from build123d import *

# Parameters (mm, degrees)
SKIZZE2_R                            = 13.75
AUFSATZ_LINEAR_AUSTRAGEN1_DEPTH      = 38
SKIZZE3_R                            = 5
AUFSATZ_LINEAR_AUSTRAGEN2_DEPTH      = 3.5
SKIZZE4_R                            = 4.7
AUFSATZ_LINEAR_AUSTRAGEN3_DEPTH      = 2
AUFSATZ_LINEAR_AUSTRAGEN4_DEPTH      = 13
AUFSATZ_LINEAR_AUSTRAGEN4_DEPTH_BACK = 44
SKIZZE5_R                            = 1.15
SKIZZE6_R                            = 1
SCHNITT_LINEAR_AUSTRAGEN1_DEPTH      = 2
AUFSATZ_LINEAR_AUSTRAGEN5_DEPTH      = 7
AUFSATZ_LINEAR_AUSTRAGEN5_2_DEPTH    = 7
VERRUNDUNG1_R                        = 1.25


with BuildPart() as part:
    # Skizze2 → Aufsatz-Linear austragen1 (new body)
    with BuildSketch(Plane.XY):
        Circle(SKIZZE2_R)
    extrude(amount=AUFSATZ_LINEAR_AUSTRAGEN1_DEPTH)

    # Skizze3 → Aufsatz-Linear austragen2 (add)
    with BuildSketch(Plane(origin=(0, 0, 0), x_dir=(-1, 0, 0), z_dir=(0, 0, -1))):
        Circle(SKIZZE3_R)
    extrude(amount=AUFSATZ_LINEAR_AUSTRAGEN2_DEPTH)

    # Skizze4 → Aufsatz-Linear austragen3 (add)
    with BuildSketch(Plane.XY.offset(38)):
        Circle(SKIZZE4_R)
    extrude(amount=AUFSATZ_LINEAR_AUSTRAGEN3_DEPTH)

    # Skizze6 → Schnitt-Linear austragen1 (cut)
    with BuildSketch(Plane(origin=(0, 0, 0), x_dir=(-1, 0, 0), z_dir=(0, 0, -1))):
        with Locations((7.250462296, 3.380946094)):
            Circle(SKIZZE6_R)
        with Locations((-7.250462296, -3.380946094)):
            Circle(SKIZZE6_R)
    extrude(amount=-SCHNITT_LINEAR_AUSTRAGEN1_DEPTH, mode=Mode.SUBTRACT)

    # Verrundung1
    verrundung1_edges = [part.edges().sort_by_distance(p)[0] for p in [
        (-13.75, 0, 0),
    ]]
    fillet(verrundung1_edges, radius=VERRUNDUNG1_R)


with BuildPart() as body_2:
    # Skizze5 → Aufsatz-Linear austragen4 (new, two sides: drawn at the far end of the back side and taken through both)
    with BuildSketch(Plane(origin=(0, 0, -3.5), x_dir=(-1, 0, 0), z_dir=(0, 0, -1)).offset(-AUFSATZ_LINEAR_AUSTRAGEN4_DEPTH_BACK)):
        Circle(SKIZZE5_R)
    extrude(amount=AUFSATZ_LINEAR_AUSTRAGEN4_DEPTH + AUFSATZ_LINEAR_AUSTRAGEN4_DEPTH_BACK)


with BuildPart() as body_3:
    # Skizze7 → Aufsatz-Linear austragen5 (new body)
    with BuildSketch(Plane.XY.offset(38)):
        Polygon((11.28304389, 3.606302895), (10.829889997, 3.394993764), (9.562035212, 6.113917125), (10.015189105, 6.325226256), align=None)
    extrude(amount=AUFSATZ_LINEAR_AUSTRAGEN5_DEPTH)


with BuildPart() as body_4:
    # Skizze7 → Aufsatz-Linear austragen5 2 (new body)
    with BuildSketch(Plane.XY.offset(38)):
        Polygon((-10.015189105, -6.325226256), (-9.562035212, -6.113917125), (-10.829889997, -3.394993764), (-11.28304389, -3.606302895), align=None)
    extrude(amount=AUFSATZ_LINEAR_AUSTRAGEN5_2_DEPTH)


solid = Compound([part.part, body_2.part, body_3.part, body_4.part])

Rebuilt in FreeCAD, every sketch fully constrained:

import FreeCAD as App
import Part
import Sketcher

V = App.Vector
Q = App.Units.Quantity


def edges_at(feature, points):
    """Names of the edges that pass closest to the given points."""
    edges = feature.Shape.Edges
    near = lambda p: min(range(len(edges)), key=lambda i: edges[i].distToShape(Part.Vertex(*p))[0])
    return sorted({f"Edge{near(p) + 1}" for p in points})


def add_polygon(sketch, points):
    """Adds a closed chain of lines whose ends are joined by coincident constraints."""
    first, n = sketch.GeometryCount, len(points)
    for a, b in zip(points, points[1:] + points[:1]):
        sketch.addGeometry(Part.LineSegment(App.Vector(*a, 0), App.Vector(*b, 0)), False)
    for i in range(n):
        sketch.addConstraint(Sketcher.Constraint("Coincident", first + i, 2, first + (i + 1) % n, 1))

doc = App.newDocument("Part")
body = doc.addObject("PartDesign::Body", "Body")

# Sketch on XY plane
sketch1 = body.newObject("Sketcher::SketchObject", "Sketch")
sketch1.AttachmentSupport = (doc.getObject("XY_Plane"), [""])
sketch1.MapMode = "FlatFace"
sketch1.addGeometry(Part.Circle(V(0, 0, 0), V(0, 0, 1), 14), False)
sketch1.addConstraint([
    Sketcher.Constraint("Coincident", 0, 3, -1, 1),
    Sketcher.Constraint("Diameter", 0, 27.5),
])
pad1 = body.newObject("PartDesign::Pad", "Pad")
pad1.Profile = sketch1
pad1.Length = 38

# Sketch on XY plane
sketch2 = body.newObject("Sketcher::SketchObject", "Sketch001")
sketch2.AttachmentSupport = (doc.getObject("XY_Plane"), [""])
sketch2.MapMode = "FlatFace"
sketch2.addGeometry(Part.Circle(V(0, 0, 0), V(0, 0, 1), 5), False)
sketch2.addConstraint([
    Sketcher.Constraint("Coincident", 0, 3, -1, 1),
    Sketcher.Constraint("Diameter", 0, 10.0),
])
pad2 = body.newObject("PartDesign::Pad", "Pad001")
pad2.Profile = sketch2
pad2.Length = 3.5
pad2.Reversed = True

# Sketch on XY plane
sketch3 = body.newObject("Sketcher::SketchObject", "Sketch002")
sketch3.AttachmentSupport = (doc.getObject("XY_Plane"), [""])
sketch3.MapMode = "FlatFace"
sketch3.AttachmentOffset = App.Placement(V(0, 0, 38), App.Rotation())
sketch3.addGeometry(Part.Circle(V(0, 0, 0), V(0, 0, 1), 4.7), False)
sketch3.addConstraint([
    Sketcher.Constraint("Coincident", 0, 3, -1, 1),
    Sketcher.Constraint("Diameter", 0, 9.4),
])
pad3 = body.newObject("PartDesign::Pad", "Pad002")
pad3.Profile = sketch3
pad3.Length = 2

# Sketch on XY plane
sketch4 = body.newObject("Sketcher::SketchObject", "Sketch003")
sketch4.AttachmentSupport = (doc.getObject("XY_Plane"), [""])
sketch4.MapMode = "FlatFace"
sketch4.addGeometry([
    Part.Circle(V(-7.3, 3.4, 0), V(0, 0, 1), 1),
    Part.Circle(V(7.3, -3.4, 0), V(0, 0, 1), 1),
], False)
sketch4.addConstraint([
    Sketcher.Constraint("Equal", 0, 1),
    Sketcher.Constraint("Symmetric", 0, 3, 1, 3, -1, 1),
    Sketcher.Constraint("Diameter", 0, 2.0),
    Sketcher.Constraint("DistanceX", 0, 3, -1, 1, 7.250462),
    Sketcher.Constraint("DistanceY", -1, 1, 0, 3, 3.380946),
])
pocket1 = body.newObject("PartDesign::Pocket", "Pocket")
pocket1.Profile = sketch4
pocket1.Length = 2
pocket1.Reversed = True
doc.recompute()

fillet = body.newObject("PartDesign::Fillet", "Fillet")
fillet.Base = (pocket1, edges_at(pocket1, [(-13.75, 0, 0)]))
fillet.Radius = 1.25
body2 = doc.addObject("PartDesign::Body", "Body001")

# Sketch on XY plane
sketch5 = body2.newObject("Sketcher::SketchObject", "Sketch004")
sketch5.AttachmentSupport = (doc.getObject("XY_Plane001"), [""])
sketch5.MapMode = "FlatFace"
sketch5.AttachmentOffset = App.Placement(V(0, 0, -3.5), App.Rotation())
sketch5.addGeometry(Part.Circle(V(0, 0, 0), V(0, 0, 1), 1.1), False)
sketch5.addConstraint([
    Sketcher.Constraint("Coincident", 0, 3, -1, 1),
    Sketcher.Constraint("Diameter", 0, 2.3),
])
pad4 = body2.newObject("PartDesign::Pad", "Pad003")
pad4.Profile = sketch5
pad4.Type = "TwoLengths"
pad4.Length = 13
pad4.Length2 = 44
pad4.Reversed = True
body3 = doc.addObject("PartDesign::Body", "Body002")

# Sketch on XY plane
sketch6 = body3.newObject("Sketcher::SketchObject", "Sketch005")
sketch6.AttachmentSupport = (doc.getObject("XY_Plane002"), [""])
sketch6.MapMode = "FlatFace"
sketch6.AttachmentOffset = App.Placement(V(0, 0, 38), App.Rotation())
add_polygon(sketch6, [(10.83, 3.39), (11.28, 3.61), (10.02, 6.33), (9.56, 6.11)])  # lines 0-3
sketch6.addConstraint([
    Sketcher.Constraint("Perpendicular", 0, 1),
    Sketcher.Constraint("Perpendicular", 1, 2),
    Sketcher.Constraint("Perpendicular", 2, 3),
    Sketcher.Constraint("Angle", 0, Q("25 deg")),
    Sketcher.Constraint("Distance", 1, 3.0),
    Sketcher.Constraint("Distance", 0, 0.5),
    Sketcher.Constraint("DistanceX", -1, 1, 1, 2, 10.015189),
    Sketcher.Constraint("DistanceY", -1, 1, 0, 2, 3.606303),
])
pad5 = body3.newObject("PartDesign::Pad", "Pad004")
pad5.Profile = sketch6
pad5.Length = 7
body4 = doc.addObject("PartDesign::Body", "Body003")

# Sketch on XY plane
sketch7 = body4.newObject("Sketcher::SketchObject", "Sketch006")
sketch7.AttachmentSupport = (doc.getObject("XY_Plane003"), [""])
sketch7.MapMode = "FlatFace"
sketch7.AttachmentOffset = App.Placement(V(0, 0, 38), App.Rotation())
add_polygon(sketch7, [(-10.02, -6.33), (-9.56, -6.11), (-10.83, -3.39), (-11.28, -3.61)])  # lines 0-3
sketch7.addConstraint([
    Sketcher.Constraint("Perpendicular", 0, 1),
    Sketcher.Constraint("Perpendicular", 1, 2),
    Sketcher.Constraint("Perpendicular", 2, 3),
    Sketcher.Constraint("Angle", 0, Q("25 deg")),
    Sketcher.Constraint("Distance", 1, 3.0),
    Sketcher.Constraint("Distance", 0, 0.5),
    Sketcher.Constraint("DistanceX", 1, 2, -1, 1, 10.82989),
    Sketcher.Constraint("DistanceY", 0, 2, -1, 1, 6.113917),
])
pad6 = body4.newObject("PartDesign::Pad", "Pad005")
pad6.Profile = sketch7
pad6.Length = 7

doc.recompute()
